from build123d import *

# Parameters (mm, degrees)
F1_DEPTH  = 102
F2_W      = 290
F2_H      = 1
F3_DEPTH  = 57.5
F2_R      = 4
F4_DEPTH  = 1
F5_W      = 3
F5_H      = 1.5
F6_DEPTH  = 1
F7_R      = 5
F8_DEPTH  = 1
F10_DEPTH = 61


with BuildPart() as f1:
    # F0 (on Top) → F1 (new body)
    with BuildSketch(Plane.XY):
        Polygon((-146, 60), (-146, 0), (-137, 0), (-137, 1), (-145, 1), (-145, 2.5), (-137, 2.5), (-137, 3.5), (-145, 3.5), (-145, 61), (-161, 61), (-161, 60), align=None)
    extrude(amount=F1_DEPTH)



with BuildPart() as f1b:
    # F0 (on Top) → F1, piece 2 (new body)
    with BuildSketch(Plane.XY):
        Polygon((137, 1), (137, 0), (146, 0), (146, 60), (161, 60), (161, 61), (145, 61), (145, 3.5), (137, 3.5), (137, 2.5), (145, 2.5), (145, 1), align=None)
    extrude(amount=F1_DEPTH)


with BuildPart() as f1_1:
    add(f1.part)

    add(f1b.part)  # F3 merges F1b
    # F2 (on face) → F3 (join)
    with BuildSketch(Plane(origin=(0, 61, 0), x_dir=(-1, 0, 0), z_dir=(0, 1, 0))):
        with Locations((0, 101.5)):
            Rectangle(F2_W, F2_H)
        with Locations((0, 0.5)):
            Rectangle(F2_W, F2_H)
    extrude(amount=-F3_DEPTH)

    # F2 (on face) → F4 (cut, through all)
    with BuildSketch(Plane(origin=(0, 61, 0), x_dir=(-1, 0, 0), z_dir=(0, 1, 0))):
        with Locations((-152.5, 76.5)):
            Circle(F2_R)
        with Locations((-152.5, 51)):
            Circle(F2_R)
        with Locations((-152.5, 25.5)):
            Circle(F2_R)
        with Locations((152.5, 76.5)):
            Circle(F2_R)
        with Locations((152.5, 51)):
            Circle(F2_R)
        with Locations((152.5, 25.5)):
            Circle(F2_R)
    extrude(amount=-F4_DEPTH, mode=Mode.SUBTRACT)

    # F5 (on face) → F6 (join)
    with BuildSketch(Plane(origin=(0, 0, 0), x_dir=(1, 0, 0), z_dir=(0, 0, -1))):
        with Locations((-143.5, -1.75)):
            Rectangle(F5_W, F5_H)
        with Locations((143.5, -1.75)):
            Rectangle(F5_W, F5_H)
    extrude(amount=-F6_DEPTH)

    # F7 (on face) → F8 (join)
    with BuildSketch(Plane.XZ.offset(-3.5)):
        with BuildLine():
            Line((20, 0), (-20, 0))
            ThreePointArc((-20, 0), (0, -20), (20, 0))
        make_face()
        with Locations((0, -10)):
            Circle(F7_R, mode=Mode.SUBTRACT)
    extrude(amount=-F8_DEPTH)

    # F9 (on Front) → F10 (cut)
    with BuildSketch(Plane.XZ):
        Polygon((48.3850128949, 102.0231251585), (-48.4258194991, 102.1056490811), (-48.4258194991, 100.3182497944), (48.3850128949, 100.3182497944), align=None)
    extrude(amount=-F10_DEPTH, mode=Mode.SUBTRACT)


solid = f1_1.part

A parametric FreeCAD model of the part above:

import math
import FreeCAD as App
import Part
import Sketcher
Q = App.Units.Quantity


def add_polygon(sketch, points):
    """Adds a closed chain of lines whose ends are joined by coincident constraints."""
    first, n = sketch.GeometryCount, len(points)
    for a, b in zip(points, points[1:] + points[:1]):
        sketch.addGeometry(Part.LineSegment(App.Vector(*a, 0), App.Vector(*b, 0)), False)
    for i in range(n):
        sketch.addConstraint(Sketcher.Constraint("Coincident", first + i, 2, first + (i + 1) % n, 1))

doc = App.newDocument("Part")
body = doc.addObject("PartDesign::Body", "Body")

sketch1 = body.newObject("Sketcher::SketchObject", "Sketch")
sketch1.AttachmentSupport = (doc.getObject("XY_Plane"), [""])
sketch1.MapMode = "FlatFace"
add_polygon(sketch1, [(-146, 60), (-146, 0), (-137, 0), (-137, 1), (-145, 1), (-145, 2.5), (-137, 2.5), (-137, 3.5), (-145, 3.5), (-145, 61), (-161, 61), (-161, 60)])
sketch1.addConstraint([
    Sketcher.Constraint("Vertical", 0),
    Sketcher.Constraint("Horizontal", 1),
    Sketcher.Constraint("Vertical", 2),
    Sketcher.Constraint("Horizontal", 3),
    Sketcher.Constraint("Vertical", 4),
    Sketcher.Constraint("Horizontal", 5),
    Sketcher.Constraint("Vertical", 6),
    Sketcher.Constraint("Horizontal", 7),
    Sketcher.Constraint("Vertical", 8),
    Sketcher.Constraint("Horizontal", 9),
    Sketcher.Constraint("Vertical", 10),
    Sketcher.Constraint("Horizontal", 11),
    Sketcher.Constraint("PointOnObject", 0, 2, -1),
    Sketcher.Constraint("Vertical", 2, 2, 5, 2),
    Sketcher.Constraint("Vertical", 4, 2, 7, 2),
    Sketcher.Constraint("Equal", 2, 6),
    Sketcher.Constraint("Equal", 6, 10),
    Sketcher.Constraint("DistanceX", 1, 1, 1, 2, Q("9 mm")),
    Sketcher.Constraint("DistanceX", 3, 2, 3, 1, Q("8 mm")),
    Sketcher.Constraint("DistanceX", 9, 2, 9, 1, Q("16 mm")),
    Sketcher.Constraint("DistanceY", 0, 2, 0, 1, Q("60 mm")),
    Sketcher.Constraint("DistanceY", 2, 1, 2, 2, Q("1 mm")),
    Sketcher.Constraint("DistanceY", 4, 1, 4, 2, Q("1.5 mm")),
    Sketcher.Constraint("DistanceX", 0, 2, -1, 1, Q("146 mm")),
])
pad1 = body.newObject("PartDesign::Pad", "Pad")
pad1.Profile = sketch1
pad1.Length = 102
body2 = doc.addObject("PartDesign::Body", "Body001")

sketch2 = body2.newObject("Sketcher::SketchObject", "Sketch001")
sketch2.AttachmentSupport = (doc.getObject("XY_Plane001"), [""])
sketch2.MapMode = "FlatFace"
add_polygon(sketch2, [(137, 1), (137, 0), (146, 0), (146, 60), (161, 60), (161, 61), (145, 61), (145, 3.5), (137, 3.5), (137, 2.5), (145, 2.5), (145, 1)])
sketch2.addConstraint([
    Sketcher.Constraint("Vertical", 0),
    Sketcher.Constraint("Horizontal", 1),
    Sketcher.Constraint("Vertical", 2),
    Sketcher.Constraint("Horizontal", 3),
    Sketcher.Constraint("Vertical", 4),
    Sketcher.Constraint("Horizontal", 5),
    Sketcher.Constraint("Vertical", 6),
    Sketcher.Constraint("Horizontal", 7),
    Sketcher.Constraint("Vertical", 8),
    Sketcher.Constraint("Horizontal", 9),
    Sketcher.Constraint("Vertical", 10),
    Sketcher.Constraint("Horizontal", 11),
    Sketcher.Constraint("PointOnObject", 0, 2, -1),
    Sketcher.Constraint("Vertical", 0, 2, 7, 2),
    Sketcher.Constraint("Vertical", 6, 2, 9, 2),
    Sketcher.Constraint("Equal", 0, 4),
    Sketcher.Constraint("Equal", 4, 8),
    Sketcher.Constraint("DistanceX", 1, 1, 1, 2, Q("9 mm")),
    Sketcher.Constraint("DistanceX", 3, 1, 3, 2, Q("15 mm")),
    Sketcher.Constraint("DistanceX", 5, 2, 5, 1, Q("16 mm")),
    Sketcher.Constraint("DistanceY", 0, 2, 0, 1, Q("1 mm")),
    Sketcher.Constraint("DistanceY", 2, 1, 2, 2, Q("60 mm")),
    Sketcher.Constraint("DistanceY", 6, 2, 6, 1, Q("57.5 mm")),
    Sketcher.Constraint("DistanceX", -1, 1, 0, 2, Q("137 mm")),
])
pad2 = body2.newObject("PartDesign::Pad", "Pad001")
pad2.Profile = sketch2
pad2.Length = 102
body.AllowCompound = True
doc.recompute()

boolean = body.newObject("PartDesign::Boolean", "Boolean")
boolean.Type = "Fuse"
boolean.addObjects([body2])

sketch3 = body.newObject("Sketcher::SketchObject", "Sketch002")
sketch3.AttachmentSupport = (doc.getObject("XZ_Plane"), [""])
sketch3.MapMode = "FlatFace"
sketch3.AttachmentOffset = App.Placement(App.Vector(0, 0, -61), App.Rotation())
add_polygon(sketch3, [(145, 102), (145, 101), (-145, 101), (-145, 102)])
add_polygon(sketch3, [(145, 1), (145, 0), (-145, 0), (-145, 1)])
sketch3.addConstraint([
    Sketcher.Constraint("Vertical", 0),
    Sketcher.Constraint("Horizontal", 1),
    Sketcher.Constraint("Vertical", 2),
    Sketcher.Constraint("Horizontal", 3),
    Sketcher.Constraint("Vertical", 4),
    Sketcher.Constraint("Horizontal", 5),
    Sketcher.Constraint("Vertical", 6),
    Sketcher.Constraint("Horizontal", 7),
    Sketcher.Constraint("Symmetric", 4, 2, 5, 2, -1, 1),
    Sketcher.Constraint("Vertical", 3, 2, 4, 2),
    Sketcher.Constraint("Vertical", 2, 2, 5, 2),
    Sketcher.Constraint("Equal", 2, 4),
    Sketcher.Constraint("DistanceX", 1, 2, 1, 1, Q("290 mm")),
    Sketcher.Constraint("DistanceY", 0, 2, 0, 1, Q("1 mm")),
    Sketcher.Constraint("DistanceY", -1, 1, 0, 2, Q("101 mm")),
])
pad3 = body.newObject("PartDesign::Pad", "Pad002")
pad3.Profile = sketch3
pad3.Length = 57.5

sketch4 = body.newObject("Sketcher::SketchObject", "Sketch003")
sketch4.AttachmentSupport = (doc.getObject("XZ_Plane"), [""])
sketch4.MapMode = "FlatFace"
sketch4.AttachmentOffset = App.Placement(App.Vector(0, 0, -61), App.Rotation())
sketch4.addGeometry([
    Part.Circle(App.Vector(152.5, 76.5, 0), App.Vector(0, 0, 1), 4),
    Part.Circle(App.Vector(152.5, 51, 0), App.Vector(0, 0, 1), 4),
    Part.Circle(App.Vector(152.5, 25.5, 0), App.Vector(0, 0, 1), 4),
    Part.Circle(App.Vector(-152.5, 76.5, 0), App.Vector(0, 0, 1), 4),
    Part.Circle(App.Vector(-152.5, 51, 0), App.Vector(0, 0, 1), 4),
    Part.Circle(App.Vector(-152.5, 25.5, 0), App.Vector(0, 0, 1), 4),
], False)
sketch4.addConstraint([
    Sketcher.Constraint("Equal", 0, 1),
    Sketcher.Constraint("Equal", 1, 2),
    Sketcher.Constraint("Equal", 2, 3),
    Sketcher.Constraint("Equal", 3, 4),
    Sketcher.Constraint("Equal", 4, 5),
    Sketcher.Constraint("Symmetric", 0, 3, 3, 3, -2),
    Sketcher.Constraint("Symmetric", 1, 3, 4, 3, -2),
    Sketcher.Constraint("Symmetric", 2, 3, 5, 3, -2),
    Sketcher.Constraint("Vertical", 0, 3, 1, 3),
    Sketcher.Constraint("Vertical", 1, 3, 2, 3),
    Sketcher.Constraint("Diameter", 0, Q("8 mm")),
    Sketcher.Constraint("DistanceY", -1, 1, 1, 3, Q("51 mm")),
    Sketcher.Constraint("DistanceY", 2, 3, 0, 3, Q("51 mm")),
    Sketcher.Constraint("DistanceX", 3, 3, 0, 3, Q("305 mm")),
    Sketcher.Constraint("DistanceY", -1, 1, 0, 3, Q("76.5 mm")),
])
pocket1 = body.newObject("PartDesign::Pocket", "Pocket")
pocket1.Profile = sketch4
pocket1.Type = "ThroughAll"
pocket1.Reversed = True

sketch5 = body.newObject("Sketcher::SketchObject", "Sketch004")
sketch5.AttachmentSupport = (doc.getObject("XY_Plane"), [""])
sketch5.MapMode = "FlatFace"
add_polygon(sketch5, [(-145, 1), (-145, 2.5), (-142, 2.5), (-142, 1)])
add_polygon(sketch5, [(142, 1), (142, 2.5), (145, 2.5), (145, 1)])
sketch5.addConstraint([
    Sketcher.Constraint("Vertical", 0),
    Sketcher.Constraint("Horizontal", 1),
    Sketcher.Constraint("Vertical", 2),
    Sketcher.Constraint("Horizontal", 3),
    Sketcher.Constraint("Vertical", 4),
    Sketcher.Constraint("Horizontal", 5),
    Sketcher.Constraint("Vertical", 6),
    Sketcher.Constraint("Horizontal", 7),
    Sketcher.Constraint("Symmetric", 1, 2, 4, 2, -2),
    Sketcher.Constraint("Symmetric", 3, 2, 6, 2, -2),
    Sketcher.Constraint("DistanceX", 1, 1, 1, 2, Q("3 mm")),
    Sketcher.Constraint("DistanceY", 0, 1, 0, 2, Q("1.5 mm")),
    Sketcher.Constraint("DistanceX", 0, 2, -1, 1, Q("145 mm")),
    Sketcher.Constraint("DistanceY", -1, 1, 2, 2, Q("1 mm")),
])
pad4 = body.newObject("PartDesign::Pad", "Pad003")
pad4.Profile = sketch5
pad4.Length = 1

sketch6 = body.newObject("Sketcher::SketchObject", "Sketch005")
sketch6.AttachmentSupport = (doc.getObject("XZ_Plane"), [""])
sketch6.MapMode = "FlatFace"
sketch6.AttachmentOffset = App.Placement(App.Vector(0, 0, -3.5), App.Rotation())
sketch6.addGeometry([
    Part.LineSegment(App.Vector(20, 0, 0), App.Vector(-20, 0, 0)),
    Part.ArcOfCircle(Part.Circle(App.Vector(0, 0, 0), App.Vector(0, 0, 1), 20), math.radians(180), math.radians(360)),
    Part.Circle(App.Vector(0, -10, 0), App.Vector(0, 0, 1), 5),
], False)
sketch6.addConstraint([
    Sketcher.Constraint("Coincident", 0, 1, 1, 2),
    Sketcher.Constraint("Coincident", 1, 1, 0, 2),
    Sketcher.Constraint("Horizontal", 0),
    Sketcher.Constraint("Coincident", 1, 3, -1, 1),
    Sketcher.Constraint("PointOnObject", 2, 3, -2),
    Sketcher.Constraint("PointOnObject", 0, 1, -1),
    Sketcher.Constraint("Diameter", 2, Q("10 mm")),
    Sketcher.Constraint("Radius", 1, Q("20 mm")),
    Sketcher.Constraint("DistanceY", 2, 3, -1, 1, Q("10 mm")),
])
pad5 = body.newObject("PartDesign::Pad", "Pad004")
pad5.Profile = sketch6
pad5.Length = 1
pad5.Reversed = True

sketch7 = body.newObject("Sketcher::SketchObject", "Sketch006")
sketch7.AttachmentSupport = (doc.getObject("XZ_Plane"), [""])
sketch7.MapMode = "FlatFace"
add_polygon(sketch7, [(48.4, 102), (-48.4, 102.1), (-48.4, 100.3), (48.4, 100.3)])
sketch7.addConstraint([
    Sketcher.Constraint("Vertical", 1),
    Sketcher.Constraint("Horizontal", 2),
    Sketcher.Constraint("Vertical", 3),
    Sketcher.Constraint("DistanceY", 1, 2, 1, 1, Q("1.787399 mm")),
    Sketcher.Constraint("DistanceX", 2, 1, 2, 2, Q("96.810832 mm")),
    Sketcher.Constraint("DistanceY", 3, 1, 3, 2, Q("1.704875 mm")),
    Sketcher.Constraint("DistanceX", 0, 2, -1, 1, Q("48.425819 mm")),
    Sketcher.Constraint("DistanceY", -1, 1, 0, 2, Q("102.105649 mm")),
])
pocket2 = body.newObject("PartDesign::Pocket", "Pocket001")
pocket2.Profile = sketch7
pocket2.Length = 61

doc.recompute()
